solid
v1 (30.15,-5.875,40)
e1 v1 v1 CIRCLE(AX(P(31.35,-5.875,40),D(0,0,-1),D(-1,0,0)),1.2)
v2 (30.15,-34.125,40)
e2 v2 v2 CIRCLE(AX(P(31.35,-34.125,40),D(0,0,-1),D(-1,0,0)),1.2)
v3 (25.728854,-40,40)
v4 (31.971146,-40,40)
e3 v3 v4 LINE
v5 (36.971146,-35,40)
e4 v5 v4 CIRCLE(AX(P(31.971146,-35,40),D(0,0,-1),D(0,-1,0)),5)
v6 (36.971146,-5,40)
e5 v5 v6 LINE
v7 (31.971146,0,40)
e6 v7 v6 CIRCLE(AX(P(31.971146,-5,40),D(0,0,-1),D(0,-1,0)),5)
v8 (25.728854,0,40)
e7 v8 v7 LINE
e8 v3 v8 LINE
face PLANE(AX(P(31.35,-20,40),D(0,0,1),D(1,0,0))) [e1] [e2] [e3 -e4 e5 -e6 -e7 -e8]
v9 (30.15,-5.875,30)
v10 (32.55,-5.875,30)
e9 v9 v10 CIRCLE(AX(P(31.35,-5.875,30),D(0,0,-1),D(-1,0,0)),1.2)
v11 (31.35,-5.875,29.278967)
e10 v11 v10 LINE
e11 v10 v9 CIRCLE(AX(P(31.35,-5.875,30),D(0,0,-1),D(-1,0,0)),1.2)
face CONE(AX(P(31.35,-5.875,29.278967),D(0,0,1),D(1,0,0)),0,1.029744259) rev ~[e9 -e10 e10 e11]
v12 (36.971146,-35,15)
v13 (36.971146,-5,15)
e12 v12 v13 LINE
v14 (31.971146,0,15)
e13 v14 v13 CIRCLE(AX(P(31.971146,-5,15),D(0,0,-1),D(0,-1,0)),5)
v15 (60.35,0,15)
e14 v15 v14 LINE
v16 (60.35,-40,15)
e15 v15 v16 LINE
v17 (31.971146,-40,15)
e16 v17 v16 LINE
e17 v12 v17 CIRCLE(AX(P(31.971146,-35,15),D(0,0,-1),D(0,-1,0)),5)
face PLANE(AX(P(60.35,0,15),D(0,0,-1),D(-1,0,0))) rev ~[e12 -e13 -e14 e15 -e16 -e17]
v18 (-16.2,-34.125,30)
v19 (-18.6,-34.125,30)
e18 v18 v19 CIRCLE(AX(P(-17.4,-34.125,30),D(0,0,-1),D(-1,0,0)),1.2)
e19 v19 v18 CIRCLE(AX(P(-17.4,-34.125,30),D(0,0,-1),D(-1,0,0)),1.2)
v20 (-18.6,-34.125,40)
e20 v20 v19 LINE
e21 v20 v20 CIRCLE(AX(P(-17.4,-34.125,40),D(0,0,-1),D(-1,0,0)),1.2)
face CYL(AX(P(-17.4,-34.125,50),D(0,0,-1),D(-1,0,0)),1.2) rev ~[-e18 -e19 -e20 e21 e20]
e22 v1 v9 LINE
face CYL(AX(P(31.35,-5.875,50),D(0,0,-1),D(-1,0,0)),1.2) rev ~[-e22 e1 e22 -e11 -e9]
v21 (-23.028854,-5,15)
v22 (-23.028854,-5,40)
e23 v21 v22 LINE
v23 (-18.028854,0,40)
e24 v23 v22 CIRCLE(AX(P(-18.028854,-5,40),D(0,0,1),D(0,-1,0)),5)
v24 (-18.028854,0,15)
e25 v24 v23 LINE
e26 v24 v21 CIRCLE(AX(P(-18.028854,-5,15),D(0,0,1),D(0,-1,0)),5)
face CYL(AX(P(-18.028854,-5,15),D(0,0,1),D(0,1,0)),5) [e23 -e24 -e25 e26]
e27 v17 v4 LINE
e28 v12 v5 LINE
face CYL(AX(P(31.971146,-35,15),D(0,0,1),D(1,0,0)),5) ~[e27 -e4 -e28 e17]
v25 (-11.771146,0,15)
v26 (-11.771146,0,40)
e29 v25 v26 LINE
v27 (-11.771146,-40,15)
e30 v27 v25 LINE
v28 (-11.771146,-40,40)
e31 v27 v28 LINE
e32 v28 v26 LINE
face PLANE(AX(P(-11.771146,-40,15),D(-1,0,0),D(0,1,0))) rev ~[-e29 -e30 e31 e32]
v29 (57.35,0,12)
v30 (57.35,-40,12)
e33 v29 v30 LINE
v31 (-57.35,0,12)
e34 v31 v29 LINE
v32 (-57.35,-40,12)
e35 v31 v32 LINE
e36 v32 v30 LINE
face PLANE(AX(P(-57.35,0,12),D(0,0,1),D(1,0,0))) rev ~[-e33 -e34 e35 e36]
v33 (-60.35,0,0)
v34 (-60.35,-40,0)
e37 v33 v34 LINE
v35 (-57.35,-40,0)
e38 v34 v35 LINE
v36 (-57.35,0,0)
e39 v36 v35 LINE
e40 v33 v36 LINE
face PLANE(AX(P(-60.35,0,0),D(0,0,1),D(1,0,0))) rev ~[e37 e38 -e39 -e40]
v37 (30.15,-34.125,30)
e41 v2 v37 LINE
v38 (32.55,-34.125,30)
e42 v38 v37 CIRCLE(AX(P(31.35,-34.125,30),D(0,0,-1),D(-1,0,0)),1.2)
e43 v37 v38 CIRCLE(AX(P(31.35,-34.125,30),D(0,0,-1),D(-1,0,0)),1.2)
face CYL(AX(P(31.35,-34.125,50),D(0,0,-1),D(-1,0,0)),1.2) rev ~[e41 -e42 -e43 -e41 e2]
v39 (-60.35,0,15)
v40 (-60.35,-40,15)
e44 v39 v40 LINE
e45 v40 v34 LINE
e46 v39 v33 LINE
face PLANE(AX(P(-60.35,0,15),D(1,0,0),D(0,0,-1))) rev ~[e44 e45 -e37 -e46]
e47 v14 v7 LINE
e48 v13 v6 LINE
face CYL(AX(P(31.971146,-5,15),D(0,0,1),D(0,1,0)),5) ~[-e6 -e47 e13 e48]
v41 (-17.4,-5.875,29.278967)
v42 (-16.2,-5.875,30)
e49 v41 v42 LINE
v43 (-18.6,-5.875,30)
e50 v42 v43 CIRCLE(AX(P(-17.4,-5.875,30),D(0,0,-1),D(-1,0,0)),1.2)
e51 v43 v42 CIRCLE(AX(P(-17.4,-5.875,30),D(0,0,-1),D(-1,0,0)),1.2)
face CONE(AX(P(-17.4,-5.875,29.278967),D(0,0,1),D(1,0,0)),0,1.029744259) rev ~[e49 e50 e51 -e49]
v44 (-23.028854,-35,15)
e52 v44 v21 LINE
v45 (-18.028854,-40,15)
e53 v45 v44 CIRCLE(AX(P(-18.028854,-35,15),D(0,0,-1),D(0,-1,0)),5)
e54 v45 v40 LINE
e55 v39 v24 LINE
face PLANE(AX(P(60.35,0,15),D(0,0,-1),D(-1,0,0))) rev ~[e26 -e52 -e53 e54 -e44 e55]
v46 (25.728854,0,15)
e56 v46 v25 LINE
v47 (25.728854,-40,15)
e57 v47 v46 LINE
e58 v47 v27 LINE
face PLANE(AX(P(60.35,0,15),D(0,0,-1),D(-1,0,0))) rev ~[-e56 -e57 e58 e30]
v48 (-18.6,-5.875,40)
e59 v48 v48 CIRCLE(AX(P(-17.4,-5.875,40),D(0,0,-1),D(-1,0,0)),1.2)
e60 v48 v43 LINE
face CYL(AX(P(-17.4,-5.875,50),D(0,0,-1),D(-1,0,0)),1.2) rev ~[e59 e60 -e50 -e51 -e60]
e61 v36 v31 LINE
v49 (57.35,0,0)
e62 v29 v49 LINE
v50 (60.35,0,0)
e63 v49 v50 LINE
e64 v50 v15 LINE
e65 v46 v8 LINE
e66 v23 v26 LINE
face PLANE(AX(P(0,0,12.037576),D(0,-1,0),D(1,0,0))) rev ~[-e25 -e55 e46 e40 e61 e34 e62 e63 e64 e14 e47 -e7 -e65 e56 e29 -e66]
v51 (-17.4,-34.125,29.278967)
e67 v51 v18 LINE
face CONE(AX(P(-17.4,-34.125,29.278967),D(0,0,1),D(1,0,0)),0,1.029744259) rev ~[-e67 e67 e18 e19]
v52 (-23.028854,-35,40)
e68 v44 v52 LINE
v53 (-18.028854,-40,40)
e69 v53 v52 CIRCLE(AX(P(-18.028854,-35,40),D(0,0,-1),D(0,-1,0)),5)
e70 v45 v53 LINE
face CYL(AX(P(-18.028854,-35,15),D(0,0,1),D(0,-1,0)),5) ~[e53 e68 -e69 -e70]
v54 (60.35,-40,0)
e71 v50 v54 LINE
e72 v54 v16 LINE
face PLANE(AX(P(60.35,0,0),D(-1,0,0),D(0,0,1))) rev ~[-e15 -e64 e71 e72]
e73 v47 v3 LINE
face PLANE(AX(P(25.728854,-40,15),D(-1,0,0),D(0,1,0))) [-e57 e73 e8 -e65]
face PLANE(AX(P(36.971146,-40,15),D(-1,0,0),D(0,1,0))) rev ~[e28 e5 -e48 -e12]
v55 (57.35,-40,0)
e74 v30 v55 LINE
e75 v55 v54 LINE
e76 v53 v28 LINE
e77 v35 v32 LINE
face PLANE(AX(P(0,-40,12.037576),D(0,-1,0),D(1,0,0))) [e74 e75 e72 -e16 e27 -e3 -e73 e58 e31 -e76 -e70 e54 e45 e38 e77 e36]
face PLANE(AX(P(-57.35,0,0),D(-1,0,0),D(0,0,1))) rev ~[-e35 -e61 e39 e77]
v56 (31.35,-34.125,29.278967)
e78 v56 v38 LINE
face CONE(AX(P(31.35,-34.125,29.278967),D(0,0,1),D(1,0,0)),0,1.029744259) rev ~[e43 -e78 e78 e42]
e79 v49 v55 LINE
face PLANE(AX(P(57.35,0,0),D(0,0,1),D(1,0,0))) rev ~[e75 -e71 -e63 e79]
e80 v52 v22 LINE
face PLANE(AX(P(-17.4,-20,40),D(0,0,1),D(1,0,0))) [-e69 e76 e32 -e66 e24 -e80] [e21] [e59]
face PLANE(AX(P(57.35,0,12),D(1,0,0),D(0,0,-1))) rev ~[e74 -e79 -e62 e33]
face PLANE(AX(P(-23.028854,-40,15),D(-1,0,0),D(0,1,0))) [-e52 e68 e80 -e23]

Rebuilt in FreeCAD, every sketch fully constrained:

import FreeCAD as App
import Part
import Sketcher

V = App.Vector
Q = App.Units.Quantity


def edges_at(feature, points):
    """Names of the edges that pass closest to the given points."""
    edges = feature.Shape.Edges
    near = lambda p: min(range(len(edges)), key=lambda i: edges[i].distToShape(Part.Vertex(*p))[0])
    return sorted({f"Edge{near(p) + 1}" for p in points})


def add_polygon(sketch, points):
    """Adds a closed chain of lines whose ends are joined by coincident constraints."""
    first, n = sketch.GeometryCount, len(points)
    for a, b in zip(points, points[1:] + points[:1]):
        sketch.addGeometry(Part.LineSegment(App.Vector(*a, 0), App.Vector(*b, 0)), False)
    for i in range(n):
        sketch.addConstraint(Sketcher.Constraint("Coincident", first + i, 2, first + (i + 1) % n, 1))

doc = App.newDocument("Part")
body = doc.addObject("PartDesign::Body", "Body")

# Sketch on XZ plane
sketch1 = doc.addObject("Sketcher::SketchObject", "Sketch")
body.addObject(sketch1)
sketch1.AttachmentSupport = (doc.XZ_Plane, [""])
sketch1.MapMode = "FlatFace"
add_polygon(sketch1, [(60.35, 15), (-60.35, 15), (-60.35, 0), (-57.35, 0), (-57.35, 12), (57.35, 12), (57.35, 0), (60.35, 0)])  # lines 0-7
sketch1.addConstraint([
    Sketcher.Constraint("Horizontal", 0),
    Sketcher.Constraint("Vertical", 1),
    Sketcher.Constraint("Horizontal", 2),
    Sketcher.Constraint("Vertical", 3),
    Sketcher.Constraint("Horizontal", 4),
    Sketcher.Constraint("Vertical", 5),
    Sketcher.Constraint("Horizontal", 6),
    Sketcher.Constraint("Vertical", 7),
    Sketcher.Constraint("Symmetric", 2, 2, 5, 2, -1, 1),
    Sketcher.Constraint("Symmetric", 1, 2, 6, 2, -2),
    Sketcher.Constraint("DistanceX", 2, 1, 2, 2, Q("3 mm")),
    Sketcher.Constraint("DistanceY", 1, 2, 1, 1, Q("15 mm")),
    Sketcher.Constraint("DistanceY", 3, 1, 3, 2, Q("12 mm")),
    Sketcher.Constraint("DistanceX", 0, 2, 0, 1, Q("120.7 mm")),
])
pad1 = doc.addObject("PartDesign::Pad", "Pad")
body.addObject(pad1)
pad1.Profile = sketch1
pad1.Length = 40

# Sketch on XY plane
sketch2 = doc.addObject("Sketcher::SketchObject", "Sketch001")
body.addObject(sketch2)
sketch2.AttachmentSupport = (doc.XY_Plane, [""])
sketch2.MapMode = "FlatFace"
sketch2.AttachmentOffset = App.Placement(V(0, 0, 15), App.Rotation())
add_polygon(sketch2, [(-23.028854, 0), (-23.028854, -40), (-11.771146, -40), (-11.771146, 0)])  # lines 0-3
add_polygon(sketch2, [(25.728854, 0), (25.728854, -40), (36.971146, -40), (36.971146, 0)])  # lines 4-7
sketch2.addConstraint([
    Sketcher.Constraint("Vertical", 0),
    Sketcher.Constraint("Horizontal", 1),
    Sketcher.Constraint("Vertical", 2),
    Sketcher.Constraint("Horizontal", 3),
    Sketcher.Constraint("Vertical", 4),
    Sketcher.Constraint("Horizontal", 5),
    Sketcher.Constraint("Vertical", 6),
    Sketcher.Constraint("Horizontal", 7),
    Sketcher.Constraint("PointOnObject", 2, 2, -1),
    Sketcher.Constraint("PointOnObject", 6, 2, -1),
    Sketcher.Constraint("Horizontal", 1, 2, 4, 2),
    Sketcher.Constraint("DistanceY", 0, 2, 0, 1, Q("40 mm")),
    Sketcher.Constraint("DistanceX", 0, 2, 5, 2, Q("60 mm")),
    Sketcher.Constraint("DistanceX", 1, 2, 4, 2, Q("37.5 mm")),
    Sketcher.Constraint("DistanceX", 1, 1, 1, 2, Q("11.257708 mm")),
    Sketcher.Constraint("DistanceX", 0, 2, -1, 1, Q("23.028854 mm")),
])
pad2 = doc.addObject("PartDesign::Pad", "Pad001")
body.addObject(pad2)
pad2.Profile = sketch2
pad2.Length = 25

# Sketch on XY plane
sketch3 = doc.addObject("Sketcher::SketchObject", "Sketch002")
body.addObject(sketch3)
sketch3.AttachmentSupport = (doc.XY_Plane, [""])
sketch3.MapMode = "FlatFace"
sketch3.AttachmentOffset = App.Placement(V(0, 0, 40), App.Rotation())
sketch3.addGeometry([
    Part.Circle(V(-17.4, -5.875, 0), V(0, 0, 1), 1.2),
    Part.Circle(V(31.35, -5.875, 0), V(0, 0, 1), 1.2),
    Part.Circle(V(31.35, -34.125, 0), V(0, 0, 1), 1.2),
    Part.Circle(V(-17.4, -34.125, 0), V(0, 0, 1), 1.2),
], False)
sketch3.addConstraint([
    Sketcher.Constraint("Equal", 0, 1),
    Sketcher.Constraint("Equal", 1, 2),
    Sketcher.Constraint("Equal", 2, 3),
    Sketcher.Constraint("Horizontal", 0, 3, 1, 3),
    Sketcher.Constraint("Horizontal", 2, 3, 3, 3),
    Sketcher.Constraint("Vertical", 1, 3, 2, 3),
    Sketcher.Constraint("Vertical", 0, 3, 3, 3),
    Sketcher.Constraint("Diameter", 0, Q("2.4 mm")),
    Sketcher.Constraint("DistanceX", 0, 3, -1, 1, Q("17.4 mm")),
    Sketcher.Constraint("DistanceX", -1, 1, 1, 3, Q("31.35 mm")),
    Sketcher.Constraint("DistanceY", 2, 3, 1, 3, Q("28.25 mm")),
    Sketcher.Constraint("DistanceY", 0, 3, -1, 1, Q("5.875 mm")),
])
doc.recompute()
hole = doc.addObject("PartDesign::Hole", "Hole")
body.addObject(hole)
hole.Profile = sketch3
hole.ThreadType = "None"
hole.Diameter = 2.4
hole.DepthType = "Dimension"
hole.Depth = 10
hole.DrillPoint = "Angled"
hole.DrillPointAngle = 118
doc.recompute()

fillet = doc.addObject("PartDesign::Fillet", "Fillet")
body.addObject(fillet)
fillet.Base = (hole, edges_at(hole, [
    (-23.029, 0, 27.5),
    (36.971, 0, 27.5),
    (36.971, -40, 27.5),
    (-23.029, -40, 27.5),
]))
fillet.Radius = 5

doc.recompute()
